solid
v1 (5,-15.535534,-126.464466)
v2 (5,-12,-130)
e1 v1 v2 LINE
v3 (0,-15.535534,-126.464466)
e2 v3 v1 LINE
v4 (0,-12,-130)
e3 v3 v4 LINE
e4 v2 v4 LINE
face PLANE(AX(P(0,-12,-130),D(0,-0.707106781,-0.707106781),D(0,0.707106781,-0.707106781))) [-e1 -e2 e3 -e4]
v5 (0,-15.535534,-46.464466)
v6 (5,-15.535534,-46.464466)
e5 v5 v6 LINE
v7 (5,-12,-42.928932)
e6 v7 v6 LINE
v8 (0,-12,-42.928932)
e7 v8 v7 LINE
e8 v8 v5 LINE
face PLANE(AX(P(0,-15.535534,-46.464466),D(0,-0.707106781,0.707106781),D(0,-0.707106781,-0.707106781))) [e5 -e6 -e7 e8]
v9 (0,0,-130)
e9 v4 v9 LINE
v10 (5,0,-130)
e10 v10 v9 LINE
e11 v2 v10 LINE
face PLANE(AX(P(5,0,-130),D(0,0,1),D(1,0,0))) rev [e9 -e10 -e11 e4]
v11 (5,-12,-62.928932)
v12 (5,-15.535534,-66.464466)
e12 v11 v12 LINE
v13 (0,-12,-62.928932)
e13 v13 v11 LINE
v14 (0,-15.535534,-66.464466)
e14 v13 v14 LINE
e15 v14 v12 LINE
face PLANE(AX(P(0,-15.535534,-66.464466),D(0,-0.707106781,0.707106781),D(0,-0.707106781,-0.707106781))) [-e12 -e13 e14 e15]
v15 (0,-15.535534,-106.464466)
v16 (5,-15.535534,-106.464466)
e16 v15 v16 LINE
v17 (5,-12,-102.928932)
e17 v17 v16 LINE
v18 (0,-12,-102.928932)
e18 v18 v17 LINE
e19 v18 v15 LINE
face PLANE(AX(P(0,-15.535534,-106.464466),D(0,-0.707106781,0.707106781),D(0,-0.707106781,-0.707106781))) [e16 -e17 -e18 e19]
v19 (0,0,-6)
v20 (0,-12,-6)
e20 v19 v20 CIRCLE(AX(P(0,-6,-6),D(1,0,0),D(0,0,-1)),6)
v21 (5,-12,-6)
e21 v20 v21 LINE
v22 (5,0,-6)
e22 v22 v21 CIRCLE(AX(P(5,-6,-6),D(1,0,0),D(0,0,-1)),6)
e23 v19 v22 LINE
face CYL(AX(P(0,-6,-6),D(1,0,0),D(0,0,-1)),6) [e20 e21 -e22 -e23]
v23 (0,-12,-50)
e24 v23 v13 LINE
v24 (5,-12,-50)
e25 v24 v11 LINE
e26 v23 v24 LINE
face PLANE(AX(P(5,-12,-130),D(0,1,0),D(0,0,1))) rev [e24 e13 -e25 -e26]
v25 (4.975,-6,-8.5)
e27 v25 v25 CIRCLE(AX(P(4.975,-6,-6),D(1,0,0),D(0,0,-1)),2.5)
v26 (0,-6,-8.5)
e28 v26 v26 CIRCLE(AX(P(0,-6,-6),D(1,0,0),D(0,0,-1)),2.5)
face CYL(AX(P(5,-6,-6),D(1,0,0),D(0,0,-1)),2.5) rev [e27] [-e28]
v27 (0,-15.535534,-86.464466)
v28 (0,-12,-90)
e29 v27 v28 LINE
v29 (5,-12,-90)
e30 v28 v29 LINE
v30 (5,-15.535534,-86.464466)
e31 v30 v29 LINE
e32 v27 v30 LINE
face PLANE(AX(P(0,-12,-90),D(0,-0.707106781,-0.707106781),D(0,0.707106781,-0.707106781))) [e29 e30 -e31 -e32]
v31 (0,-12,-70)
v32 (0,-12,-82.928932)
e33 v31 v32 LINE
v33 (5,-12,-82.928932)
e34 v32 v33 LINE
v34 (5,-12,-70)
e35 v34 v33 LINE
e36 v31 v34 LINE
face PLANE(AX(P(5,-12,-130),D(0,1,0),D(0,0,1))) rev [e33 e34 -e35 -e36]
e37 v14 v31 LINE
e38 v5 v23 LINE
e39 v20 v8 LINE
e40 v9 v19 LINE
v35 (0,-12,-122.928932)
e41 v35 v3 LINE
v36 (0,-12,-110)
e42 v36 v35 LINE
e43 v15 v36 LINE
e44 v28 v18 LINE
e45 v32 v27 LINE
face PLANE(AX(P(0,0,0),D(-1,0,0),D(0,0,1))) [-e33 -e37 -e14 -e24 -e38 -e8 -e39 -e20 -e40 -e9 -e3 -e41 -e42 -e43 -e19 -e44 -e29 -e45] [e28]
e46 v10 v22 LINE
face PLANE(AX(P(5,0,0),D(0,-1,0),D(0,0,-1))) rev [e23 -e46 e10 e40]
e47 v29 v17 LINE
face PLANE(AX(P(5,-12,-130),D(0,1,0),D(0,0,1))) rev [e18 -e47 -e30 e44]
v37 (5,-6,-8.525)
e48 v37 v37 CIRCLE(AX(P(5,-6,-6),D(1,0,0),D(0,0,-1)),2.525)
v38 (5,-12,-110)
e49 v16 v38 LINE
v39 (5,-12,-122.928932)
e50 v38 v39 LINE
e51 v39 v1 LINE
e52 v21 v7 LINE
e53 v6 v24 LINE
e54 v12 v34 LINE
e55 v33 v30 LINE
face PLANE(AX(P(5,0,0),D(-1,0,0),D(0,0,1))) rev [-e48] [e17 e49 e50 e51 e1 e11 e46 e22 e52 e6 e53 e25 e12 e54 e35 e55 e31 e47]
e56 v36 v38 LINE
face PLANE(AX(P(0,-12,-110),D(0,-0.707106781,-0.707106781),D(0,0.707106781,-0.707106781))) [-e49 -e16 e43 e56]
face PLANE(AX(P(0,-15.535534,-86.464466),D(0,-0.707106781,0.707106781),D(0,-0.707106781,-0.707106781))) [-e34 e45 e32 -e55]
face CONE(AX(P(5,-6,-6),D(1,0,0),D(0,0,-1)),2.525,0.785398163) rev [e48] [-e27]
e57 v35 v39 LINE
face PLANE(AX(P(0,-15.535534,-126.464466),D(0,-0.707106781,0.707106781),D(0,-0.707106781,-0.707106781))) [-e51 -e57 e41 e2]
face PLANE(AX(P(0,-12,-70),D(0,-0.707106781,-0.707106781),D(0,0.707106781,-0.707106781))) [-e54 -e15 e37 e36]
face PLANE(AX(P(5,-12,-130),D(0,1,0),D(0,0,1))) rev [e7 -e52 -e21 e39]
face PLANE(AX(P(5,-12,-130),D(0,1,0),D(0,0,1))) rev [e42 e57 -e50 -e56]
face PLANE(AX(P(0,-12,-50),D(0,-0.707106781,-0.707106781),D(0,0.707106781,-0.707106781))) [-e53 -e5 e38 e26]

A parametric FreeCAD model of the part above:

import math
import FreeCAD as App
import Part
import Sketcher
Q = App.Units.Quantity


def add_polygon(sketch, points):
    """Adds a closed chain of lines whose ends are joined by coincident constraints."""
    first, n = sketch.GeometryCount, len(points)
    for a, b in zip(points, points[1:] + points[:1]):
        sketch.addGeometry(Part.LineSegment(App.Vector(*a, 0), App.Vector(*b, 0)), False)
    for i in range(n):
        sketch.addConstraint(Sketcher.Constraint("Coincident", first + i, 2, first + (i + 1) % n, 1))

doc = App.newDocument("Part")
params = doc.addObject("Spreadsheet::Sheet", "Params")
for row, (alias, value) in enumerate([
    ("sketch1_width", "12 mm"),
    ("sketch1_height", "130 mm"),
    ("pad1_length", "5 mm"),
    ("sketch2_length", "5 mm"),
    ("pad2_length", "5 mm"),
    ("sketch3_radius", "6 mm"),
    ("sketch4_diameter", "5 mm"),
    ("hole_diameter", "5 mm"),
    ("hole_csink_diameter", "5.05 mm"),
], start=1):
    params.set(f"A{row}", alias)
    params.set(f"B{row}", "=" + value)
    params.setAlias(f"B{row}", alias)

body = doc.addObject("PartDesign::Body", "Body")

# Sketch on YZ plane
sketch1 = body.newObject("Sketcher::SketchObject", "Sketch")
sketch1.AttachmentSupport = (doc.getObject("YZ_Plane"), [""])
sketch1.MapMode = "FlatFace"
add_polygon(sketch1, [(0, 0), (-12, 0), (-12, -130), (0, -130)])  # lines 0-3
sketch1.addConstraint(Sketcher.Constraint("Horizontal", 0))
sketch1.addConstraint(Sketcher.Constraint("Vertical", 1))
sketch1.addConstraint(Sketcher.Constraint("Horizontal", 2))
sketch1.addConstraint(Sketcher.Constraint("Vertical", 3))
sketch1.addConstraint(Sketcher.Constraint("Coincident", 3, 2, -1, 1))
sketch1.addConstraint(Sketcher.Constraint("DistanceX", 0, 2, 0, 1, Q("12 mm")))
sketch1.addConstraint(Sketcher.Constraint("DistanceY", 1, 2, 1, 1, Q("130 mm")))
sketch1.setExpression("Constraints[9]", "Params.sketch1_width")
sketch1.setExpression("Constraints[10]", "Params.sketch1_height")
pad1 = body.newObject("PartDesign::Pad", "Pad")
pad1.Profile = sketch1
pad1.setExpression("Length", "Params.pad1_length")

# Sketch on YZ plane
sketch2 = body.newObject("Sketcher::SketchObject", "Sketch001")
sketch2.AttachmentSupport = (doc.getObject("YZ_Plane"), [""])
sketch2.MapMode = "FlatFace"
sketch2.AttachmentOffset = App.Placement(App.Vector(0, 0, 5), App.Rotation())
add_polygon(sketch2, [(-16, -126), (-12, -130), (-12, -123)])  # lines 0-2
add_polygon(sketch2, [(-12, -103), (-16, -106), (-12, -110)])  # lines 3-5
add_polygon(sketch2, [(-12, -83), (-16, -86), (-12, -90)])  # lines 6-8
add_polygon(sketch2, [(-12, -63), (-16, -66), (-12, -70)])  # lines 9-11
add_polygon(sketch2, [(-12, -43), (-16, -46), (-12, -50)])  # lines 12-14
sketch2.addConstraint(Sketcher.Constraint("Vertical", 1))
sketch2.addConstraint(Sketcher.Constraint("Vertical", 5))
sketch2.addConstraint(Sketcher.Constraint("Vertical", 8))
sketch2.addConstraint(Sketcher.Constraint("Vertical", 11))
sketch2.addConstraint(Sketcher.Constraint("Vertical", 14))
sketch2.addConstraint(Sketcher.Constraint("Perpendicular", 0, 2))
sketch2.addConstraint(Sketcher.Constraint("Parallel", 2, 3))
sketch2.addConstraint(Sketcher.Constraint("Perpendicular", 3, 4))
sketch2.addConstraint(Sketcher.Constraint("Perpendicular", 4, 6))
sketch2.addConstraint(Sketcher.Constraint("Perpendicular", 6, 7))
sketch2.addConstraint(Sketcher.Constraint("Perpendicular", 7, 9))
sketch2.addConstraint(Sketcher.Constraint("Perpendicular", 9, 10))
sketch2.addConstraint(Sketcher.Constraint("Perpendicular", 10, 12))
sketch2.addConstraint(Sketcher.Constraint("Perpendicular", 12, 13))
sketch2.addConstraint(Sketcher.Constraint("Vertical", 2, 2, 3, 2))
sketch2.addConstraint(Sketcher.Constraint("Vertical", 1, 2, 4, 2))
sketch2.addConstraint(Sketcher.Constraint("Vertical", 3, 2, 6, 2))
sketch2.addConstraint(Sketcher.Constraint("Vertical", 5, 2, 7, 2))
sketch2.addConstraint(Sketcher.Constraint("Vertical", 6, 2, 9, 2))
sketch2.addConstraint(Sketcher.Constraint("Vertical", 8, 2, 10, 2))
sketch2.addConstraint(Sketcher.Constraint("Vertical", 9, 2, 12, 2))
sketch2.addConstraint(Sketcher.Constraint("Vertical", 11, 2, 13, 2))
sketch2.addConstraint(Sketcher.Constraint("Equal", 0, 2))
sketch2.addConstraint(Sketcher.Constraint("Distance", 0, Q("5 mm")))
sketch2.addConstraint(Sketcher.Constraint("DistanceX", 0, 2, -1, 1, Q("12 mm")))
sketch2.addConstraint(Sketcher.Constraint("DistanceY", 0, 2, -1, 1, Q("130 mm")))
sketch2.addConstraint(Sketcher.Constraint("DistanceY", 4, 2, -1, 1, Q("110 mm")))
sketch2.addConstraint(Sketcher.Constraint("DistanceY", 7, 2, -1, 1, Q("90 mm")))
sketch2.addConstraint(Sketcher.Constraint("DistanceY", 10, 2, -1, 1, Q("70 mm")))
sketch2.addConstraint(Sketcher.Constraint("DistanceY", 13, 2, -1, 1, Q("50 mm")))
sketch2.setExpression("Constraints[38]", "Params.sketch2_length")
pad2 = body.newObject("PartDesign::Pad", "Pad001")
pad2.Profile = sketch2
pad2.setExpression("Length", "Params.pad2_length")
pad2.Reversed = True

# Sketch on YZ plane
sketch3 = body.newObject("Sketcher::SketchObject", "Sketch002")
sketch3.AttachmentSupport = (doc.getObject("YZ_Plane"), [""])
sketch3.MapMode = "FlatFace"
sketch3.AttachmentOffset = App.Placement(App.Vector(0, 0, 5), App.Rotation())
sketch3.addGeometry(Part.ArcOfCircle(Part.Circle(App.Vector(-6, -6, 0), App.Vector(0, 0, 1), 6), math.radians(0), math.radians(90)), False)
sketch3.addGeometry(Part.LineSegment(App.Vector(0, -6, 0), App.Vector(0, 0, 0)), False)
sketch3.addGeometry(Part.LineSegment(App.Vector(0, 0, 0), App.Vector(-6, 0, 0)), False)
sketch3.addGeometry(Part.ArcOfCircle(Part.Circle(App.Vector(-6, -6, 0), App.Vector(0, 0, 1), 6), math.radians(90), math.radians(180)), False)
sketch3.addGeometry(Part.LineSegment(App.Vector(-6, 0, 0), App.Vector(-12, 0, 0)), False)
sketch3.addGeometry(Part.LineSegment(App.Vector(-12, 0, 0), App.Vector(-12, -6, 0)), False)
sketch3.addConstraint(Sketcher.Constraint("Tangent", 0, 1, 1, 1))
sketch3.addConstraint(Sketcher.Constraint("Coincident", 1, 2, 2, 1))
sketch3.addConstraint(Sketcher.Constraint("Tangent", 2, 2, 0, 2))
sketch3.addConstraint(Sketcher.Constraint("Tangent", 3, 1, 4, 1))
sketch3.addConstraint(Sketcher.Constraint("Coincident", 4, 2, 5, 1))
sketch3.addConstraint(Sketcher.Constraint("Tangent", 5, 2, 3, 2))
sketch3.addConstraint(Sketcher.Constraint("Vertical", 1))
sketch3.addConstraint(Sketcher.Constraint("Horizontal", 2))
sketch3.addConstraint(Sketcher.Constraint("Horizontal", 4))
sketch3.addConstraint(Sketcher.Constraint("Vertical", 5))
sketch3.addConstraint(Sketcher.Constraint("Coincident", 1, 2, -1, 1))
sketch3.addConstraint(Sketcher.Constraint("Coincident", 3, 3, 0, 3))
sketch3.addConstraint(Sketcher.Constraint("Equal", 0, 3))
sketch3.addConstraint(Sketcher.Constraint("Radius", 0, Q("6 mm")))
sketch3.setExpression("Constraints[13]", "Params.sketch3_radius")
pocket1 = body.newObject("PartDesign::Pocket", "Pocket")
pocket1.Profile = sketch3
pocket1.Type = "ThroughAll"

# Sketch on YZ plane
sketch4 = body.newObject("Sketcher::SketchObject", "Sketch003")
sketch4.AttachmentSupport = (doc.getObject("YZ_Plane"), [""])
sketch4.MapMode = "FlatFace"
sketch4.AttachmentOffset = App.Placement(App.Vector(0, 0, 5), App.Rotation())
sketch4.addGeometry(Part.Circle(App.Vector(-6, -6, 0), App.Vector(0, 0, 1), 2.5), False)
sketch4.addConstraint(Sketcher.Constraint("Diameter", 0, Q("5 mm")))
sketch4.addConstraint(Sketcher.Constraint("DistanceX", 0, 3, -1, 1, Q("6 mm")))
sketch4.addConstraint(Sketcher.Constraint("DistanceY", 0, 3, -1, 1, Q("6 mm")))
sketch4.setExpression("Constraints[0]", "Params.sketch4_diameter")
doc.recompute()
hole = body.newObject("PartDesign::Hole", "Hole")
hole.Profile = sketch4
hole.ThreadType = "None"
hole.setExpression("Diameter", "Params.hole_diameter")
hole.DepthType = "ThroughAll"
hole.HoleCutType = "Countersink"
hole.setExpression("HoleCutDiameter", "Params.hole_csink_diameter")
hole.HoleCutCountersinkAngle = 90

doc.recompute()
